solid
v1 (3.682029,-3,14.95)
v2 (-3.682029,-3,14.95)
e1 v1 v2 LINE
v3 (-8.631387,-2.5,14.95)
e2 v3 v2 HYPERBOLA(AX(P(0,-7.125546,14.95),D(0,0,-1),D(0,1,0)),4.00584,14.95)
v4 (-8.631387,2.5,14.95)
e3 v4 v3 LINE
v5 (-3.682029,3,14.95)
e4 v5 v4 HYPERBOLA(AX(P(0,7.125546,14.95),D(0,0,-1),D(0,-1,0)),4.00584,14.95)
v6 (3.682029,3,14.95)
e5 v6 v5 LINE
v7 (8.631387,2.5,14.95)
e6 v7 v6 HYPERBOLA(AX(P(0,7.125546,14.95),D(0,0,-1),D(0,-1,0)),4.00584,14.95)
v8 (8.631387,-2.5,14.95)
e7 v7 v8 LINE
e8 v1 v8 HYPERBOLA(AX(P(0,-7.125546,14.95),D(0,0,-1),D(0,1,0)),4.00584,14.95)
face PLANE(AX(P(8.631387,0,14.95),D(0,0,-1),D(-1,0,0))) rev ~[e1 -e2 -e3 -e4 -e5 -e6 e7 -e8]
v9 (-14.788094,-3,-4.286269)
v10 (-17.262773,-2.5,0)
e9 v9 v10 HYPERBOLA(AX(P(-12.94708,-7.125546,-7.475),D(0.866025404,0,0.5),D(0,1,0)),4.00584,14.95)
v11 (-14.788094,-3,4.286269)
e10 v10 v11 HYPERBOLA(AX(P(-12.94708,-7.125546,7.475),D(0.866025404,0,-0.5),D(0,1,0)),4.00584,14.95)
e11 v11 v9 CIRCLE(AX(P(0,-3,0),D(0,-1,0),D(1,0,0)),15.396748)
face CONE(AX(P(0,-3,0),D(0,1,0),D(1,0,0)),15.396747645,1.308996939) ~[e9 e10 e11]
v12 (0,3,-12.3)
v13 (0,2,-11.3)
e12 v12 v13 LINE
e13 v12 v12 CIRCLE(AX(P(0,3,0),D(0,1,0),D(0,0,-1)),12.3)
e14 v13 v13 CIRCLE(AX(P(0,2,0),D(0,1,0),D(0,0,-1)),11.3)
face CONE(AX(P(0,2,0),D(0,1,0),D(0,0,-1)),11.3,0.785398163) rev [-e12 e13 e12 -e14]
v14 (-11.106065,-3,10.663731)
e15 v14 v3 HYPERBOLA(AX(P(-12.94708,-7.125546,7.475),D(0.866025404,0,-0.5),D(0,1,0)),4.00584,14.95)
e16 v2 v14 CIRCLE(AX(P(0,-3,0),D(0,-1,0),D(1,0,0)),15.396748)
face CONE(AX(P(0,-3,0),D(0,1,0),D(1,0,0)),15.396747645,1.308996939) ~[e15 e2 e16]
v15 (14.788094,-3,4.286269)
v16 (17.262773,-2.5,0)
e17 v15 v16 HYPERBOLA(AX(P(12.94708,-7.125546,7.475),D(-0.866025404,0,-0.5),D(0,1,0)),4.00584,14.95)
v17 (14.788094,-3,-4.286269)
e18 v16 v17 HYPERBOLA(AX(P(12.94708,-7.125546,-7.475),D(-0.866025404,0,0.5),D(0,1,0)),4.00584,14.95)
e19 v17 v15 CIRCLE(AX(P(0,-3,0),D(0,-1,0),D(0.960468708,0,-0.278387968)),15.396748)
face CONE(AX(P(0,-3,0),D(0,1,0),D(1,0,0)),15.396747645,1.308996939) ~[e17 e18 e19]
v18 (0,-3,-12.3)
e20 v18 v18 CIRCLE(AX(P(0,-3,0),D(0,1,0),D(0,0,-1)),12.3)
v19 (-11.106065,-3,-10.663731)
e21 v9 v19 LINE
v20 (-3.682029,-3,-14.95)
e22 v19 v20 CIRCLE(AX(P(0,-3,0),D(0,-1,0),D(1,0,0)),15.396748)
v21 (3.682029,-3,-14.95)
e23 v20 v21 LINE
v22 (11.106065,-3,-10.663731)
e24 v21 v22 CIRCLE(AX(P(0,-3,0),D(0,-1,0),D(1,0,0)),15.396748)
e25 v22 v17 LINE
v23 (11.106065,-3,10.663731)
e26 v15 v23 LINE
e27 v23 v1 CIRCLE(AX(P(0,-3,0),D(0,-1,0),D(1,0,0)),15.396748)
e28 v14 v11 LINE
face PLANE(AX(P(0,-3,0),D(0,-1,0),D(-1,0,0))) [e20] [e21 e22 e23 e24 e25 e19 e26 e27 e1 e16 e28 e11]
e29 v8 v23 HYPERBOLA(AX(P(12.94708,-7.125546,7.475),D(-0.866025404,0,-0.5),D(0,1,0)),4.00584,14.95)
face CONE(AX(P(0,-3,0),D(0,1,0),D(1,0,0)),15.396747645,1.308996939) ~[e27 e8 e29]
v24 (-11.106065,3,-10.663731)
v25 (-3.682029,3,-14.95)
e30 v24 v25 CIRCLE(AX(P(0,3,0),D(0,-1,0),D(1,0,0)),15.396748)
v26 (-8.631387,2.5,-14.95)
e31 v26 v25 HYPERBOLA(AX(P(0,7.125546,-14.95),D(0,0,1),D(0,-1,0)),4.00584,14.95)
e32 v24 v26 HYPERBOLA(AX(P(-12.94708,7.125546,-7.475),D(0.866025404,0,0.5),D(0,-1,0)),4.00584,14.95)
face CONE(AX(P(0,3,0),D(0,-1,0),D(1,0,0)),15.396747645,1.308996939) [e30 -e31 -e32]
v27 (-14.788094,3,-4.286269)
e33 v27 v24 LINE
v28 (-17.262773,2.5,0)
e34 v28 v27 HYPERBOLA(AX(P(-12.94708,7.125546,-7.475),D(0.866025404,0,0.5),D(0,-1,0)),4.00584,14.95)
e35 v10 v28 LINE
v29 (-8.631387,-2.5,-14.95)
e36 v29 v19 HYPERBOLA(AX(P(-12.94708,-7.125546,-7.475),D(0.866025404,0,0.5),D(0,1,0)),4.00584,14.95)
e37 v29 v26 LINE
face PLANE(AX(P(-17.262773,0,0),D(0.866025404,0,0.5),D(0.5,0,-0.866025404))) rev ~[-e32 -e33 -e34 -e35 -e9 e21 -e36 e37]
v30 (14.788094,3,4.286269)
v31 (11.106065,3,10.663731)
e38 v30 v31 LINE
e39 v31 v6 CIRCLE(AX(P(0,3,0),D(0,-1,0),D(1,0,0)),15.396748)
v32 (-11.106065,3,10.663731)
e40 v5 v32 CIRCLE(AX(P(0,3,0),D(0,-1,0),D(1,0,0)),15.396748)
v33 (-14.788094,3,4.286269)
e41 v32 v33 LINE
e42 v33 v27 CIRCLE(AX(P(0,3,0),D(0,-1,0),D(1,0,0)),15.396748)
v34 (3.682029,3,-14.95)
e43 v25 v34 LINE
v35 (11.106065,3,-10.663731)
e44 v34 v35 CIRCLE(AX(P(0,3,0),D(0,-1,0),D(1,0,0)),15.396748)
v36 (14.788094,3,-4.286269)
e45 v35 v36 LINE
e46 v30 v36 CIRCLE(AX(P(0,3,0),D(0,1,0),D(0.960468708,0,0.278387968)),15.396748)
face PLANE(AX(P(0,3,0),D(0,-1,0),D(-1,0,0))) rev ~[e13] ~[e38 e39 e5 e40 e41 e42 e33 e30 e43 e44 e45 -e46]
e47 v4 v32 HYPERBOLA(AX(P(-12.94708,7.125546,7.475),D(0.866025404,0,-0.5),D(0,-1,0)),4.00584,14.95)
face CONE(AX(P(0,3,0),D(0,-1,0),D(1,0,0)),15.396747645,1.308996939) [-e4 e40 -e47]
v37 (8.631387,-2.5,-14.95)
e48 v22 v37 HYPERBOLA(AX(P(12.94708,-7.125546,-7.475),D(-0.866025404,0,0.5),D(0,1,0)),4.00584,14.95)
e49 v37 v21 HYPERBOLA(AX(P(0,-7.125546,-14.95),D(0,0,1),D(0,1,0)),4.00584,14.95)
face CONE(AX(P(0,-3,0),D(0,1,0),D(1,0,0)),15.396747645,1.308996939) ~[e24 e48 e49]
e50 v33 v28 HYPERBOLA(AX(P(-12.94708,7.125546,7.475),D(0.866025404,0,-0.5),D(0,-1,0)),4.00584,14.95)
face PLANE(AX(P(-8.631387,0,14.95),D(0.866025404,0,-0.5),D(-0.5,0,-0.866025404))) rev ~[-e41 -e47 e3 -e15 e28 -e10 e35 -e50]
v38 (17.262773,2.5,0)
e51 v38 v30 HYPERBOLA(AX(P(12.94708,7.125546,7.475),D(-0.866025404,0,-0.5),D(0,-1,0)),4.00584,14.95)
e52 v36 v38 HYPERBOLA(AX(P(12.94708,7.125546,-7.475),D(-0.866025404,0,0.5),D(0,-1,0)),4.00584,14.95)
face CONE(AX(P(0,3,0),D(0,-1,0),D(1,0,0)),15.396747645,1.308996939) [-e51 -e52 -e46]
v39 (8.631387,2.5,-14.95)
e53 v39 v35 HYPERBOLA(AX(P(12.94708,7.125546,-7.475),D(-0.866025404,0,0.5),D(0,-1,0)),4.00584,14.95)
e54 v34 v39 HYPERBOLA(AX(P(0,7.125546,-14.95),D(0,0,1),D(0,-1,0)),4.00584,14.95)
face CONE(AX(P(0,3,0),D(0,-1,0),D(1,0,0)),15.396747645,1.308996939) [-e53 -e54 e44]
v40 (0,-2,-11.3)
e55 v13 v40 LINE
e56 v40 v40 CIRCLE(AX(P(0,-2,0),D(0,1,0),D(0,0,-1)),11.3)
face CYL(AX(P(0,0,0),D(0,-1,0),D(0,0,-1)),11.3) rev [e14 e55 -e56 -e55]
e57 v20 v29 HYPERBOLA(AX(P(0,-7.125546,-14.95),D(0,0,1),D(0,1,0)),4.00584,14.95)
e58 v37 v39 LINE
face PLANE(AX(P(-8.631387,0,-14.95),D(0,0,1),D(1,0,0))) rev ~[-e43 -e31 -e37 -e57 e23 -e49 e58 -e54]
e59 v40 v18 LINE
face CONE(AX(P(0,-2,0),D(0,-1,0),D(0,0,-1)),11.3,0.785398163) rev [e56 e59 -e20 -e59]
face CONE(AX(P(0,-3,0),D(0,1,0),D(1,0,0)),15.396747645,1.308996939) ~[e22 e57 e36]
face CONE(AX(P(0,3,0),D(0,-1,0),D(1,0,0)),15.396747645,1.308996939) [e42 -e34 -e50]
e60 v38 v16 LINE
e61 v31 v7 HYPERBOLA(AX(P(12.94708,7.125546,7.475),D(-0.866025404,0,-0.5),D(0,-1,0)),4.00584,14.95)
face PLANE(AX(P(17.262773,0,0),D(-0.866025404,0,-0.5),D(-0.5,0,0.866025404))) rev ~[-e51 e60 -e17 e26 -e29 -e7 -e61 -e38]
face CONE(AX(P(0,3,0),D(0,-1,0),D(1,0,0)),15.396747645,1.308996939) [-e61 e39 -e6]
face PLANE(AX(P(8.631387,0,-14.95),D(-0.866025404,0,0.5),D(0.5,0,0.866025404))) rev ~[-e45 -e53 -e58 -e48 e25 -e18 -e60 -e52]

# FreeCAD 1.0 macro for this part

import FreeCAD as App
import Part
import Sketcher

V = App.Vector
Q = App.Units.Quantity


def edges_at(feature, points):
    """Names of the edges that pass closest to the given points."""
    edges = feature.Shape.Edges
    near = lambda p: min(range(len(edges)), key=lambda i: edges[i].distToShape(Part.Vertex(*p))[0])
    return sorted({f"Edge{near(p) + 1}" for p in points})


def add_polygon(sketch, points):
    """Adds a closed chain of lines whose ends are joined by coincident constraints."""
    first, n = sketch.GeometryCount, len(points)
    for a, b in zip(points, points[1:] + points[:1]):
        sketch.addGeometry(Part.LineSegment(App.Vector(*a, 0), App.Vector(*b, 0)), False)
    for i in range(n):
        sketch.addConstraint(Sketcher.Constraint("Coincident", first + i, 2, first + (i + 1) % n, 1))

doc = App.newDocument("Part")
body = doc.addObject("PartDesign::Body", "Body")

sketch1 = body.newObject("Sketcher::SketchObject", "Sketch")
sketch1.AttachmentSupport = (doc.getObject("XZ_Plane"), [""])
sketch1.MapMode = "FlatFace"
add_polygon(sketch1, [(17.262773, 0), (8.631387, -14.95), (-8.631387, -14.95), (-17.262773, 0), (-8.631387, 14.95), (8.631387, 14.95)])
sketch1.addGeometry(Part.Circle(V(0, 0, 0), V(0, 0, 1), 11.3), False)
sketch1.addConstraint([
    Sketcher.Constraint("Horizontal", 1),
    Sketcher.Constraint("Horizontal", 4),
    Sketcher.Constraint("Coincident", 6, 3, -1, 1),
    Sketcher.Constraint("Symmetric", 0, 2, 3, 2, -1, 1),
    Sketcher.Constraint("Symmetric", 2, 2, 5, 2, -1, 1),
    Sketcher.Constraint("PointOnObject", 2, 2, -1),
    Sketcher.Constraint("Parallel", 2, 5),
    Sketcher.Constraint("Vertical", 1, 2, 3, 2),
    Sketcher.Constraint("Diameter", 6, Q("22.6 mm")),
    Sketcher.Constraint("Angle", 0, Q("-120 deg")),
    Sketcher.Constraint("DistanceY", 1, 2, 3, 2, Q("29.9 mm")),
    Sketcher.Constraint("DistanceX", 1, 2, 1, 1, Q("17.262773 mm")),
])
pad1 = body.newObject("PartDesign::Pad", "Pad")
pad1.Profile = sketch1
pad1.Length = 6
pad1.Midplane = True
doc.recompute()

chamfer = body.newObject("PartDesign::Chamfer", "Chamfer")
chamfer.Base = (pad1, edges_at(pad1, [(0, 3, 11.3), (0, -3, 11.3)]))
chamfer.Size = 1

sketch2 = body.newObject("Sketcher::SketchObject", "Sketch001")
sketch2.AttachmentSupport = (doc.getObject("XY_Plane"), [""])
sketch2.MapMode = "FlatFace"
add_polygon(sketch2, [(15.396748, 3), (17.262773, 2.5), (17.262773, 3)])
add_polygon(sketch2, [(15.396748, -3), (17.262773, -3), (17.262773, -2.5)])
sketch2.addConstraint([
    Sketcher.Constraint("Vertical", 1),
    Sketcher.Constraint("Horizontal", 2),
    Sketcher.Constraint("Horizontal", 3),
    Sketcher.Constraint("Vertical", 4),
    Sketcher.Constraint("Symmetric", 1, 2, 3, 2, -1),
    Sketcher.Constraint("Vertical", 2, 2, 5, 2),
    Sketcher.Constraint("Equal", 1, 4),
    Sketcher.Constraint("Angle", 0, Q("-15 deg")),
    Sketcher.Constraint("DistanceY", 1, 1, 1, 2, Q("0.5 mm")),
    Sketcher.Constraint("DistanceY", -1, 1, 1, 2, Q("3 mm")),
    Sketcher.Constraint("DistanceX", -1, 1, 0, 2, Q("17.262773 mm")),
])
groove = body.newObject("PartDesign::Groove", "Groove")
groove.Profile = sketch2
groove.ReferenceAxis = (sketch2, ["V_Axis"])
groove.Angle = 360

doc.recompute()
